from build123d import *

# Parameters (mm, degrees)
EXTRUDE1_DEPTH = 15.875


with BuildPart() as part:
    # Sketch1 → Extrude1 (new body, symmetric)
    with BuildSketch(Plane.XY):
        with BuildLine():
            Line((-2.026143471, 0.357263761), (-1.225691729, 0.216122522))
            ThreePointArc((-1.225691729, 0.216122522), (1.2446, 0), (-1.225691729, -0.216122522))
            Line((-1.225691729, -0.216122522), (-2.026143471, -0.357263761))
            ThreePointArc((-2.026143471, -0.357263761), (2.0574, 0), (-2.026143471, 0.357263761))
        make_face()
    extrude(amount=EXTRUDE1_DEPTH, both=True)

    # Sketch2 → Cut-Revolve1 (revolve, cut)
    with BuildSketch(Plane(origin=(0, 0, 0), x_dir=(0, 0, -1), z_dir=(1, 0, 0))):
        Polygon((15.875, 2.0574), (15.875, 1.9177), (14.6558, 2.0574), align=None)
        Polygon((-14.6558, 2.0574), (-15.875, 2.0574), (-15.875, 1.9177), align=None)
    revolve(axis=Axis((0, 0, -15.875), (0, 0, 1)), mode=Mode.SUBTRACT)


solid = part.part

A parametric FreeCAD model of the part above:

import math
import FreeCAD as App
import Part
import Sketcher
Q = App.Units.Quantity

doc = App.newDocument("Part")
body = doc.addObject("PartDesign::Body", "Body")

sketch1 = body.newObject("Sketcher::SketchObject", "Sketch")
sketch1.AttachmentSupport = (doc.getObject("XY_Plane"), [""])
sketch1.MapMode = "FlatFace"
sketch1.addGeometry([
    Part.LineSegment(App.Vector(-2.03, 0.36, 0), App.Vector(-1.23, 0.22, 0)),
    Part.ArcOfCircle(Part.Circle(App.Vector(0, 0, 0), App.Vector(0, 0, 1), 1.24), math.radians(-170), math.radians(170)),
    Part.LineSegment(App.Vector(-1.23, -0.22, 0), App.Vector(-2.03, -0.36, 0)),
    Part.ArcOfCircle(Part.Circle(App.Vector(0, 0, 0), App.Vector(0, 0, 1), 2.06), math.radians(-170), math.radians(170)),
], False)
sketch1.addConstraint([
    Sketcher.Constraint("Coincident", 0, 2, 1, 2),
    Sketcher.Constraint("Coincident", 1, 1, 2, 1),
    Sketcher.Constraint("Coincident", 2, 2, 3, 1),
    Sketcher.Constraint("Coincident", 3, 2, 0, 1),
    Sketcher.Constraint("Coincident", 1, 3, -1, 1),
    Sketcher.Constraint("Coincident", 3, 3, -1, 1),
    Sketcher.Constraint("Vertical", 0, 2, 1, 1),
    Sketcher.Constraint("Vertical", 2, 2, 3, 2),
    Sketcher.Constraint("Angle", 0, Q("-10 deg")),
    Sketcher.Constraint("Radius", 1, Q("0.049 in")),
    Sketcher.Constraint("Radius", 3, Q("0.081 in")),
    Sketcher.Constraint("DistanceX", 0, 2, -1, 1, Q("1.225692 mm")),
])
pad1 = body.newObject("PartDesign::Pad", "Pad")
pad1.Profile = sketch1
pad1.Length = Q("1.25 in")
pad1.Midplane = True

sketch2 = body.newObject("Sketcher::SketchObject", "Sketch001")
sketch2.AttachmentSupport = (doc.getObject("YZ_Plane"), [""])
sketch2.MapMode = "FlatFace"
sketch2.addGeometry([
    Part.LineSegment(App.Vector(1.92, -15.88, 0), App.Vector(2.06, -15.88, 0)),
    Part.LineSegment(App.Vector(2.06, -15.88, 0), App.Vector(2.06, -14.66, 0)),
    Part.LineSegment(App.Vector(2.06, -14.66, 0), App.Vector(1.92, -15.88, 0)),
    Part.LineSegment(App.Vector(2.06, 14.66, 0), App.Vector(2.06, 15.88, 0)),
    Part.LineSegment(App.Vector(2.06, 15.88, 0), App.Vector(1.92, 15.88, 0)),
    Part.LineSegment(App.Vector(1.92, 15.88, 0), App.Vector(2.06, 14.66, 0)),
], False)
sketch2.addConstraint([
    Sketcher.Constraint("Coincident", 0, 2, 1, 1),
    Sketcher.Constraint("Coincident", 1, 2, 2, 1),
    Sketcher.Constraint("Coincident", 2, 2, 0, 1),
    Sketcher.Constraint("Coincident", 3, 2, 4, 1),
    Sketcher.Constraint("Coincident", 4, 2, 5, 1),
    Sketcher.Constraint("Coincident", 5, 2, 3, 1),
    Sketcher.Constraint("Horizontal", 0),
    Sketcher.Constraint("Vertical", 1),
    Sketcher.Constraint("Vertical", 3),
    Sketcher.Constraint("Horizontal", 4),
    Sketcher.Constraint("Symmetric", 0, 2, 3, 2, -1),
    Sketcher.Constraint("Vertical", 2, 2, 4, 2),
    Sketcher.Constraint("Equal", 1, 3),
    Sketcher.Constraint("DistanceY", 1, 1, 1, 2, Q("0.048 in")),
    Sketcher.Constraint("DistanceY", 0, 2, 3, 2, Q("1.25 in")),
    Sketcher.Constraint("DistanceX", 0, 1, 0, 2, Q("0.0055 in")),
    Sketcher.Constraint("DistanceX", -1, 1, 0, 2, Q("0.081 in")),
])
groove = body.newObject("PartDesign::Groove", "Groove")
groove.Profile = sketch2
groove.ReferenceAxis = (sketch2, ["V_Axis"])
groove.Angle = 360

doc.recompute()
